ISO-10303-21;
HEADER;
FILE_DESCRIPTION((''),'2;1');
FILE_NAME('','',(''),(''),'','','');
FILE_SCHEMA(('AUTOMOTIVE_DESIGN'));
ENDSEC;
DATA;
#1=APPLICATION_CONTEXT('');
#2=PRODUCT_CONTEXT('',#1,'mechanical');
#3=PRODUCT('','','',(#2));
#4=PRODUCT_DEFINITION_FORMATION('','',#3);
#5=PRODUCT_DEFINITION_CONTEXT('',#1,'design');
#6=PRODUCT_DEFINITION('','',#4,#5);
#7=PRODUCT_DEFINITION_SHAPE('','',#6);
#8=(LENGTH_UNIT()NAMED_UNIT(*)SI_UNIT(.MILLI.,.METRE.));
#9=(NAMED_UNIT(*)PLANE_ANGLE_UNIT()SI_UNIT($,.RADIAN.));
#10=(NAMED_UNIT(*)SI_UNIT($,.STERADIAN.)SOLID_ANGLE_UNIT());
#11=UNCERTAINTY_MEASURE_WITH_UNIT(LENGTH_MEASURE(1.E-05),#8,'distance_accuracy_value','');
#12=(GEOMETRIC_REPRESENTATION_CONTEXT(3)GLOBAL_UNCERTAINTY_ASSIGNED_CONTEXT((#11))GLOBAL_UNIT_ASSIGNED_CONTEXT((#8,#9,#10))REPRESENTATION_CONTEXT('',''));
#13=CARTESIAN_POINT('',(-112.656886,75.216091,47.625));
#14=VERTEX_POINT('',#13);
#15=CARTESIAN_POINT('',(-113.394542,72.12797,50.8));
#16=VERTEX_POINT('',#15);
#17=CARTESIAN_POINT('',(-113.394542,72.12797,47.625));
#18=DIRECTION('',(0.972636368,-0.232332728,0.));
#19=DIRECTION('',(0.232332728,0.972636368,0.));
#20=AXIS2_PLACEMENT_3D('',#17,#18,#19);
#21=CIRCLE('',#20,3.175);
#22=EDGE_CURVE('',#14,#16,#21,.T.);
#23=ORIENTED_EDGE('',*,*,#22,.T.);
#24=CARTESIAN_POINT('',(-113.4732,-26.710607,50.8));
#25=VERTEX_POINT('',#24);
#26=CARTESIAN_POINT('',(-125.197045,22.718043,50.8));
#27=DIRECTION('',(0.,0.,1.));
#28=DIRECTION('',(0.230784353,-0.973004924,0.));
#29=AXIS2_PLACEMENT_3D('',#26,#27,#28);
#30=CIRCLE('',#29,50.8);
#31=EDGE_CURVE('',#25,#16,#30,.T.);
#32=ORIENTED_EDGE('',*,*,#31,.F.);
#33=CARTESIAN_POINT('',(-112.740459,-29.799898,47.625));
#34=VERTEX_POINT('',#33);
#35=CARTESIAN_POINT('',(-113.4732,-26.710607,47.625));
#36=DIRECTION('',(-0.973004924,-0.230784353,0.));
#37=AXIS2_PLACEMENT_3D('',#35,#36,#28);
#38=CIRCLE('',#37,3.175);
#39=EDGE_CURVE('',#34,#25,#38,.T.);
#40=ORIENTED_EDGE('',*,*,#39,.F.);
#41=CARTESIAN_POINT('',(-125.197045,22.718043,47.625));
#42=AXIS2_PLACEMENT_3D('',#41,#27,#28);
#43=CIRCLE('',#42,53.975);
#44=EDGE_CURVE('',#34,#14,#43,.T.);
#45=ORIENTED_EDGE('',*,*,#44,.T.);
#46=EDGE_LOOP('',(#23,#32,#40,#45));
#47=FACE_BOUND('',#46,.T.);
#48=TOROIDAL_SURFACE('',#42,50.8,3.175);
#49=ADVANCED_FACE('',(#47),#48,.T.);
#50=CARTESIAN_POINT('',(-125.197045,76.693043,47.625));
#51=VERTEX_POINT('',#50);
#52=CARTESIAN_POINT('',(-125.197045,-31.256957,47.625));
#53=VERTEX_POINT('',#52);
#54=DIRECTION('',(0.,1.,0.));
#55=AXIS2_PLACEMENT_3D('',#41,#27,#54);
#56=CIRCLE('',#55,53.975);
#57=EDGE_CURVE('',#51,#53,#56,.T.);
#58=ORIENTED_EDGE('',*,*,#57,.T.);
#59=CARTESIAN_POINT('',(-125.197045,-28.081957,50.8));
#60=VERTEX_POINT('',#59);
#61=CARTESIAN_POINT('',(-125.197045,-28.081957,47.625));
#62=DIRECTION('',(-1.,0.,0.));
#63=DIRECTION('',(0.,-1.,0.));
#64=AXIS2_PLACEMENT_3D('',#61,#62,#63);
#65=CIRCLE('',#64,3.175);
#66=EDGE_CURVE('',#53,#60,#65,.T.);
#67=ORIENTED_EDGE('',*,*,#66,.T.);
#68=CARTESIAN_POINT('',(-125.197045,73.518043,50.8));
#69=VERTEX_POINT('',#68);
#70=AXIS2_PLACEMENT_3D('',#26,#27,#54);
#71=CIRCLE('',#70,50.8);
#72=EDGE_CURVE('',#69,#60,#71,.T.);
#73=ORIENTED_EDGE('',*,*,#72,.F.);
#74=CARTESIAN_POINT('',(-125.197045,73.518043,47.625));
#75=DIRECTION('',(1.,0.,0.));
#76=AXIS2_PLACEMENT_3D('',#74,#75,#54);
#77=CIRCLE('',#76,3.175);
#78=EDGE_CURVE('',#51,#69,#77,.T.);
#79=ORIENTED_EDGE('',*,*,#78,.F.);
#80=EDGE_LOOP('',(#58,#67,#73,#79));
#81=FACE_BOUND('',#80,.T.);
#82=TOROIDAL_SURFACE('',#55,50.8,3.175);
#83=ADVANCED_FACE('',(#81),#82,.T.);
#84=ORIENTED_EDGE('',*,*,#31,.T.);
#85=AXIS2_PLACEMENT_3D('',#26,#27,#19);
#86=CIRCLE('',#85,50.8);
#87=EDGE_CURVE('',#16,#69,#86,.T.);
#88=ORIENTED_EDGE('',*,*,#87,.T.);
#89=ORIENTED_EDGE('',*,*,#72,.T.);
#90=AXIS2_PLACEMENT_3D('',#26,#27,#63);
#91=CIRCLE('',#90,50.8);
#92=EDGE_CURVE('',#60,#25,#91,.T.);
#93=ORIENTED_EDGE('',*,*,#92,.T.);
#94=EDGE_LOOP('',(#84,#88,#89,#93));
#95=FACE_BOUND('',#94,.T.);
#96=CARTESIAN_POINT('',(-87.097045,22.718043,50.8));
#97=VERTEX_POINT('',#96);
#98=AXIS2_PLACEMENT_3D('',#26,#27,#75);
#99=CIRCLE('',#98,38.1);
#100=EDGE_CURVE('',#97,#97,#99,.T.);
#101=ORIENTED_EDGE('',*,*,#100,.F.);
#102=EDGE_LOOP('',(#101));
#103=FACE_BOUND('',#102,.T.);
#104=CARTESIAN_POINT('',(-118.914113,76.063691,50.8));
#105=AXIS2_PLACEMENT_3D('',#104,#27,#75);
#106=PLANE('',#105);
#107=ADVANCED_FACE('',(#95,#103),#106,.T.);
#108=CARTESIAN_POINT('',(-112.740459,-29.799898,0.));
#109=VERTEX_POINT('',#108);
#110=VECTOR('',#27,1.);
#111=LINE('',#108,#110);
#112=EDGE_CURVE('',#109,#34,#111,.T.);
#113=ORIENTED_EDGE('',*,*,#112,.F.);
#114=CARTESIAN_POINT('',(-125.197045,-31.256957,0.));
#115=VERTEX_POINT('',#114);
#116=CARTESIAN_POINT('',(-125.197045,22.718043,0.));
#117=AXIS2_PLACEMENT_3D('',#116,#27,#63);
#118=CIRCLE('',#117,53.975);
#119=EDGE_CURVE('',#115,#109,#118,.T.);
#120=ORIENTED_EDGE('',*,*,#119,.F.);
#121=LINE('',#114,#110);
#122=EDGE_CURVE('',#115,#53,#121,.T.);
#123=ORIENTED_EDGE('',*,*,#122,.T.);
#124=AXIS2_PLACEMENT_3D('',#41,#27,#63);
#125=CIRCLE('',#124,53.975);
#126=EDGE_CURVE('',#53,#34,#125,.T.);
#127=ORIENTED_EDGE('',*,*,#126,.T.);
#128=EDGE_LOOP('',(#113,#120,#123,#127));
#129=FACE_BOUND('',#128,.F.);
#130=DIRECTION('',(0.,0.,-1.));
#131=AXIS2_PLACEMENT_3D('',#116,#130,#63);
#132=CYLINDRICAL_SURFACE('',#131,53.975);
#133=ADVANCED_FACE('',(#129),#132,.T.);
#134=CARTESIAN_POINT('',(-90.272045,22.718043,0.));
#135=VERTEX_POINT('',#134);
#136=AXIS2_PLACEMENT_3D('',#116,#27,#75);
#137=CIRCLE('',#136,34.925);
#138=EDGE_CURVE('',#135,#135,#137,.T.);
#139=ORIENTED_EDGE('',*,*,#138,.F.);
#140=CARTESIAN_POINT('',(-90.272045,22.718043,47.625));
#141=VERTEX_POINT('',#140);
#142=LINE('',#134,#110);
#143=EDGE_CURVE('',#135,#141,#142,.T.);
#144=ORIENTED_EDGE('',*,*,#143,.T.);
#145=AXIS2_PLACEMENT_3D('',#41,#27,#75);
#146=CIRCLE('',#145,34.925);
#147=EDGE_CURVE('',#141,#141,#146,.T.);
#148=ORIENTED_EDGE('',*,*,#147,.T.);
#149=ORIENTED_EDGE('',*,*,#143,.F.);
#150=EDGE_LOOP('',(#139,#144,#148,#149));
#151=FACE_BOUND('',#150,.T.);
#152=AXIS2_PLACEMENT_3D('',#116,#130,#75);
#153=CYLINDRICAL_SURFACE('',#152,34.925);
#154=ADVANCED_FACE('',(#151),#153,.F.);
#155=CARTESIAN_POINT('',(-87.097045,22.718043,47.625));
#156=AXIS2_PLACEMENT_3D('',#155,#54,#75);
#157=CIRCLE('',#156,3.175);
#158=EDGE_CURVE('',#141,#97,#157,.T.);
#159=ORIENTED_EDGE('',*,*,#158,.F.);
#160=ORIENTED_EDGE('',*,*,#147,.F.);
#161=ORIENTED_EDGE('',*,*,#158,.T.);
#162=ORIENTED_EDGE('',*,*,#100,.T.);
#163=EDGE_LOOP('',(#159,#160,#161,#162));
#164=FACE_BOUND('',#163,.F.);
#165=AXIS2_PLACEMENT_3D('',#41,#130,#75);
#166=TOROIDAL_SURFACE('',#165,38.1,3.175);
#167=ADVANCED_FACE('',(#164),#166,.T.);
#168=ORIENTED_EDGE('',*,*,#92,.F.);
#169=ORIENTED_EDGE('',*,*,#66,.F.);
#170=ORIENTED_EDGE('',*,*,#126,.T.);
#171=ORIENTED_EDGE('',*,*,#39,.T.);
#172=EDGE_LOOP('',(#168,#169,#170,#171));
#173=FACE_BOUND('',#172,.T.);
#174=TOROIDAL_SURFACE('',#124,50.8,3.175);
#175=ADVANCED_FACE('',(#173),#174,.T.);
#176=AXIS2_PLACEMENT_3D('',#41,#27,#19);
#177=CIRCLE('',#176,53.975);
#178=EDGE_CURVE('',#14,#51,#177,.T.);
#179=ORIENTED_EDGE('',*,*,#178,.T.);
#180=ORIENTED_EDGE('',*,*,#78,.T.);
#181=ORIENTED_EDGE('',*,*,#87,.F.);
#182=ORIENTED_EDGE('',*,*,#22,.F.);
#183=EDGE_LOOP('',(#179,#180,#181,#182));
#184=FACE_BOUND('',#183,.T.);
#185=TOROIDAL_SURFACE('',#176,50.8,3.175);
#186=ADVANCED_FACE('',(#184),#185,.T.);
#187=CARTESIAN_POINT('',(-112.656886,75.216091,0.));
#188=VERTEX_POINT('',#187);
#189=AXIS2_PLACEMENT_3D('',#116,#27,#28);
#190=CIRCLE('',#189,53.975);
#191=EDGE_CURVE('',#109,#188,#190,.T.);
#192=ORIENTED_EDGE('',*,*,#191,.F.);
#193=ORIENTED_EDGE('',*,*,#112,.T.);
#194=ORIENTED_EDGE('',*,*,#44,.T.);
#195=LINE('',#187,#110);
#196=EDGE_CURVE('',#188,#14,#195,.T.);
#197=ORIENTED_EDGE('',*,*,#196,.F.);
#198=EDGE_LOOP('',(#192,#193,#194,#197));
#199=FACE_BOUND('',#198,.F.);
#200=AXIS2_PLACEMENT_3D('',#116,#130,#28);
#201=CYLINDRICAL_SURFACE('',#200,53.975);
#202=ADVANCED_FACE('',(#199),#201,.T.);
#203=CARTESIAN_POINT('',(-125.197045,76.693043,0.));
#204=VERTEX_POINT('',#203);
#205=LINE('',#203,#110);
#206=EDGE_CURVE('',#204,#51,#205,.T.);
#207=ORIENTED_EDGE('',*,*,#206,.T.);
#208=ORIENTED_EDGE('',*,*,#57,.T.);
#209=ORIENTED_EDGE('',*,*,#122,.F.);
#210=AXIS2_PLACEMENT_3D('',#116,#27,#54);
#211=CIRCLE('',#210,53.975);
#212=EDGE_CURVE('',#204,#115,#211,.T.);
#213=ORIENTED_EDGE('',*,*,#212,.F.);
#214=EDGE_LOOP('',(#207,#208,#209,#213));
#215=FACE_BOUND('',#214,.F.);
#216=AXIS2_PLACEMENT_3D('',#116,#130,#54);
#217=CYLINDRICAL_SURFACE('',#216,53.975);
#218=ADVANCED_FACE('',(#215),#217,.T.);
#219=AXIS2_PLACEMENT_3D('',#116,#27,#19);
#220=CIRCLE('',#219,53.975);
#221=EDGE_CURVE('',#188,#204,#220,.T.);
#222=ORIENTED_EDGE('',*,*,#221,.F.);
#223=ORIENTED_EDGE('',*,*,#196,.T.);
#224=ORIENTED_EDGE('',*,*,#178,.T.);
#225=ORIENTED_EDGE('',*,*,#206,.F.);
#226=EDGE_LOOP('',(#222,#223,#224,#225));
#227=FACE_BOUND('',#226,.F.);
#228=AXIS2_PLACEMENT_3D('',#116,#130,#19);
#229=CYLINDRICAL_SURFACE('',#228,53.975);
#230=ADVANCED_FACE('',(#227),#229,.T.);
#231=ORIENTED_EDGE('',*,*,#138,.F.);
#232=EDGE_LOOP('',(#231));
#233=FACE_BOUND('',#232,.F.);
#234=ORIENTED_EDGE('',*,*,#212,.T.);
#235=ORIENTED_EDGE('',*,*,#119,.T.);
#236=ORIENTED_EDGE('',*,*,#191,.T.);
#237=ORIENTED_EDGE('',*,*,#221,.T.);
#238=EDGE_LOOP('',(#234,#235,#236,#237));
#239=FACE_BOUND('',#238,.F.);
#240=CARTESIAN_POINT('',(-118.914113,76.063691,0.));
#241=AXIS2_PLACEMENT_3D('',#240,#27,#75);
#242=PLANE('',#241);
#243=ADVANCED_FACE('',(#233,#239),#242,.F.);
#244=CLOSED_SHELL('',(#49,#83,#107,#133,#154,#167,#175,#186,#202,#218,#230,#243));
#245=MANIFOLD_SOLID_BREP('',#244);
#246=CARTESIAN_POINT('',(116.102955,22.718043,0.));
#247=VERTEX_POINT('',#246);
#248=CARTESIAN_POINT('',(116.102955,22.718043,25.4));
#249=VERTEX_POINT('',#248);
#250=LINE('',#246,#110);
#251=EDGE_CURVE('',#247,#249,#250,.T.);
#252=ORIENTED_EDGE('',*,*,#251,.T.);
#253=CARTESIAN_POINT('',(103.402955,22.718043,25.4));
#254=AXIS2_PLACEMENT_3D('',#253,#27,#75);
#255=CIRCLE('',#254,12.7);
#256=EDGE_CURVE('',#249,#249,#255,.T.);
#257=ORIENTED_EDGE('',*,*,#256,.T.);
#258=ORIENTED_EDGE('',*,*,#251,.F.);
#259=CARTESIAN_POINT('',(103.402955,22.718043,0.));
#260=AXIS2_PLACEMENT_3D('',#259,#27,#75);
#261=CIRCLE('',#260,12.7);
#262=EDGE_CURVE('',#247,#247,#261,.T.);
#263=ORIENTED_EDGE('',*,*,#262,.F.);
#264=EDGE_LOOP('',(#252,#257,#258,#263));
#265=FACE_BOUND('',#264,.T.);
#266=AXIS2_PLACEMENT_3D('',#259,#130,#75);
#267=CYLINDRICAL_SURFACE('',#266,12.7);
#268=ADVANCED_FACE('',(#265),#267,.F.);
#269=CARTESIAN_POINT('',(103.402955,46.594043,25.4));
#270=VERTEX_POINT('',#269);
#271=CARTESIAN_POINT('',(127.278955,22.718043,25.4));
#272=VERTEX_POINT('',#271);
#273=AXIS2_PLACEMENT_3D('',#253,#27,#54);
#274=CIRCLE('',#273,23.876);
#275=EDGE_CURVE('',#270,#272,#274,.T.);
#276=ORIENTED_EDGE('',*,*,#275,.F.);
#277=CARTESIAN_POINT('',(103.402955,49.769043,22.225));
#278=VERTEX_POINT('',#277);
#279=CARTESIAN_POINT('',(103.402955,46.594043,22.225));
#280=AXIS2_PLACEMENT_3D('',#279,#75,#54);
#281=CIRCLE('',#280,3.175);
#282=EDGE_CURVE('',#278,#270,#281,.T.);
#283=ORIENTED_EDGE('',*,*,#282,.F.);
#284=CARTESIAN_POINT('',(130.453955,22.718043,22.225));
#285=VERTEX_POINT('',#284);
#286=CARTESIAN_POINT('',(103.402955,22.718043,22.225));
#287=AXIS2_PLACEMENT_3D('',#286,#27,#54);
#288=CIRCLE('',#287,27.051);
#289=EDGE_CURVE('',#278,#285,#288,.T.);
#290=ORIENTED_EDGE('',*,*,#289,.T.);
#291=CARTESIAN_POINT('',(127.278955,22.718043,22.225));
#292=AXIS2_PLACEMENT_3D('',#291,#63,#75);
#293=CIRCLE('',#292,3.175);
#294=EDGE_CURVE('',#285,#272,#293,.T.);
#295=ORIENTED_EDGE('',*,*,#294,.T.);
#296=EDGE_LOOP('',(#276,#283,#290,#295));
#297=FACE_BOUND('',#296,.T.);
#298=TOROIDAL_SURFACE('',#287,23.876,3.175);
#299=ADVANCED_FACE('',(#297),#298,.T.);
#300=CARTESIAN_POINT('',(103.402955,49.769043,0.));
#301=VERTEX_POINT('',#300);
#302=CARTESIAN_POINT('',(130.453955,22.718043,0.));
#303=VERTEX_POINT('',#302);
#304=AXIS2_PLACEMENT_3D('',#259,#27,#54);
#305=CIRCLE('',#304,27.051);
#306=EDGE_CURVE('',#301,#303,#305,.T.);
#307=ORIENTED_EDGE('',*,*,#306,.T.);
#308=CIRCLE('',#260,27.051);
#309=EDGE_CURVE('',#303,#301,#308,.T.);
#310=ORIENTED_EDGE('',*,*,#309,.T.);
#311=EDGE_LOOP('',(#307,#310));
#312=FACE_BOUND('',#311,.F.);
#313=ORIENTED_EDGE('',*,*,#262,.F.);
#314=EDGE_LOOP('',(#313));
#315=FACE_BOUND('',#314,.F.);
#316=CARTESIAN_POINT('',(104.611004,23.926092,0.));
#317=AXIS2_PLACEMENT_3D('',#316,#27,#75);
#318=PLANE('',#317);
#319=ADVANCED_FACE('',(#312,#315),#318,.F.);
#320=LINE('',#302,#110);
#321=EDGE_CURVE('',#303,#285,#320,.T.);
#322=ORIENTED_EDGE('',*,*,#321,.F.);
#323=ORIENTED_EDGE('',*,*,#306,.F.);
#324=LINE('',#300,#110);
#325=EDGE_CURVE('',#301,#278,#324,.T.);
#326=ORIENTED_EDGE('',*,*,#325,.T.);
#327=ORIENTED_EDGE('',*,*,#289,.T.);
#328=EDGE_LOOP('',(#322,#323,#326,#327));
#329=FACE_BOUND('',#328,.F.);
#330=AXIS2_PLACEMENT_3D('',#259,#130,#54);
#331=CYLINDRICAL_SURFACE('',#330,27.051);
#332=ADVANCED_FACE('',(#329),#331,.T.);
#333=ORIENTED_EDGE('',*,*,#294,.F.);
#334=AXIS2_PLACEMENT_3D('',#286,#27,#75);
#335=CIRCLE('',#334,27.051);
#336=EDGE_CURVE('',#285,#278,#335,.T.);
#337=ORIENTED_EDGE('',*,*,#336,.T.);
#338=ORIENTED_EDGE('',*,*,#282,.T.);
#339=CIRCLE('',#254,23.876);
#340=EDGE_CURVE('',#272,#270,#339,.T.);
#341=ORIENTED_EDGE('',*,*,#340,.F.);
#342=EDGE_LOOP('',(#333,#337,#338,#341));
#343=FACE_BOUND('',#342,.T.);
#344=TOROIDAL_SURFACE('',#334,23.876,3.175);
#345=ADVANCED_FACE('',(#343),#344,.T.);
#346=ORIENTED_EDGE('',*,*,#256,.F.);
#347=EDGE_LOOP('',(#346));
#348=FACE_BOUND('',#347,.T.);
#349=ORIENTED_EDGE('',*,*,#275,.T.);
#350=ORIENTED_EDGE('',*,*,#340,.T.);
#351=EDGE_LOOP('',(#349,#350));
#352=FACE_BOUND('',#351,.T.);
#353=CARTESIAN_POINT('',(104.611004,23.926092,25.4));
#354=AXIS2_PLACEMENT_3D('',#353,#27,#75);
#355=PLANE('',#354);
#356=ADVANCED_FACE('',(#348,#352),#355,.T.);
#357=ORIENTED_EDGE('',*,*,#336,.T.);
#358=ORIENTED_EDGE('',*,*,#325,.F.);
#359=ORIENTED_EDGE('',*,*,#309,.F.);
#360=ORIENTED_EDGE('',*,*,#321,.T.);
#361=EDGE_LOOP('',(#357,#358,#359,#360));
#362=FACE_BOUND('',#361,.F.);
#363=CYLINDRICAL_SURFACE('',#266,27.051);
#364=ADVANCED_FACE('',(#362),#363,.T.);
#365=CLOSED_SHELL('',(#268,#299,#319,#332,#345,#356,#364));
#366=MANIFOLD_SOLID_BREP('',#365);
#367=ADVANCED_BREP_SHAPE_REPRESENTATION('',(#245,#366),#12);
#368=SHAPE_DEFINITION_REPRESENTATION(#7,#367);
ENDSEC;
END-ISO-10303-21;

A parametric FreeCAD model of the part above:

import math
import FreeCAD as App
import Part
import Sketcher

V = App.Vector
Q = App.Units.Quantity


def edges_at(feature, points):
    """Names of the edges that pass closest to the given points."""
    edges = feature.Shape.Edges
    near = lambda p: min(range(len(edges)), key=lambda i: edges[i].distToShape(Part.Vertex(*p))[0])
    return sorted({f"Edge{near(p) + 1}" for p in points})

doc = App.newDocument("Part")
body = doc.addObject("PartDesign::Body", "Body")

sketch1 = body.newObject("Sketcher::SketchObject", "Sketch")
sketch1.AttachmentSupport = (doc.getObject("XY_Plane"), [""])
sketch1.MapMode = "FlatFace"
sketch1.addGeometry([
    Part.ArcOfCircle(Part.Circle(V(-125, 23, 0), V(0, 0, 1), 54), math.radians(76.57), math.radians(90)),
    Part.ArcOfCircle(Part.Circle(V(-125, 23, 0), V(0, 0, 1), 54), math.radians(90), math.radians(270)),
    Part.ArcOfCircle(Part.Circle(V(-125, 23, 0), V(0, 0, 1), 54), math.radians(-90), math.radians(-76.66)),
    Part.ArcOfCircle(Part.Circle(V(-125, 23, 0), V(0, 0, 1), 54), math.radians(-77), math.radians(77)),
    Part.Circle(V(-125, 23, 0), V(0, 0, 1), 35),
], False)
sketch1.addConstraint([
    Sketcher.Constraint("Tangent", 0, 2, 1, 1),
    Sketcher.Constraint("Tangent", 1, 2, 2, 1),
    Sketcher.Constraint("Tangent", 2, 2, 3, 1),
    Sketcher.Constraint("Tangent", 3, 2, 0, 1),
    Sketcher.Constraint("Coincident", 4, 3, 0, 3),
    Sketcher.Constraint("Equal", 0, 1),
    Sketcher.Constraint("Vertical", 4, 3, 0, 2),
    Sketcher.Constraint("Vertical", 0, 2, 1, 2),
    Sketcher.Constraint("Diameter", 4, Q("2.75 in")),
    Sketcher.Constraint("Radius", 0, Q("2.125 in")),
    Sketcher.Constraint("DistanceX", 2, 2, -1, 1, Q("112.740459 mm")),
    Sketcher.Constraint("DistanceY", -1, 1, 3, 2, Q("75.216091 mm")),
    Sketcher.Constraint("DistanceY", 1, 2, 2, 2, Q("1.457059 mm")),
    Sketcher.Constraint("DistanceX", 0, 2, 3, 2, Q("12.540159 mm")),
])
pad1 = body.newObject("PartDesign::Pad", "Pad")
pad1.Profile = sketch1
pad1.Length = Q("2 in")
doc.recompute()

fillet = body.newObject("PartDesign::Fillet", "Fillet")
fillet.Base = (pad1, edges_at(pad1, [(-179.172, 22.718, 50.8), (-160.122, 22.718, 50.8)]))
fillet.Radius = Q("0.125 in")
body2 = doc.addObject("PartDesign::Body", "Body001")

sketch2 = body2.newObject("Sketcher::SketchObject", "Sketch001")
sketch2.AttachmentSupport = (doc.getObject("XY_Plane001"), [""])
sketch2.MapMode = "FlatFace"
sketch2.addGeometry([
    Part.ArcOfCircle(Part.Circle(V(103, 23, 0), V(0, 0, 1), 27), math.radians(0), math.radians(90)),
    Part.ArcOfCircle(Part.Circle(V(103, 23, 0), V(0, 0, 1), 27), math.radians(90), math.radians(360)),
    Part.Circle(V(103, 23, 0), V(0, 0, 1), 13),
], False)
sketch2.addConstraint([
    Sketcher.Constraint("Tangent", 0, 1, 1, 2),
    Sketcher.Constraint("Coincident", 1, 1, 0, 2),
    Sketcher.Constraint("Coincident", 2, 3, 0, 3),
    Sketcher.Constraint("Horizontal", 2, 3, 0, 1),
    Sketcher.Constraint("Vertical", 2, 3, 1, 1),
    Sketcher.Constraint("Diameter", 2, Q("1 in")),
    Sketcher.Constraint("Radius", 0, Q("1.065 in")),
    Sketcher.Constraint("DistanceX", -1, 1, 0, 3, Q("103.402955 mm")),
    Sketcher.Constraint("DistanceY", -1, 1, 0, 3, Q("22.718043 mm")),
])
pad2 = body2.newObject("PartDesign::Pad", "Pad001")
pad2.Profile = sketch2
pad2.Length = Q("1 in")
doc.recompute()

fillet2 = body2.newObject("PartDesign::Fillet", "Fillet001")
fillet2.Base = (pad2, edges_at(pad2, [(84.275, 3.59, 25.4)]))
fillet2.Radius = Q("0.125 in")

doc.recompute()
